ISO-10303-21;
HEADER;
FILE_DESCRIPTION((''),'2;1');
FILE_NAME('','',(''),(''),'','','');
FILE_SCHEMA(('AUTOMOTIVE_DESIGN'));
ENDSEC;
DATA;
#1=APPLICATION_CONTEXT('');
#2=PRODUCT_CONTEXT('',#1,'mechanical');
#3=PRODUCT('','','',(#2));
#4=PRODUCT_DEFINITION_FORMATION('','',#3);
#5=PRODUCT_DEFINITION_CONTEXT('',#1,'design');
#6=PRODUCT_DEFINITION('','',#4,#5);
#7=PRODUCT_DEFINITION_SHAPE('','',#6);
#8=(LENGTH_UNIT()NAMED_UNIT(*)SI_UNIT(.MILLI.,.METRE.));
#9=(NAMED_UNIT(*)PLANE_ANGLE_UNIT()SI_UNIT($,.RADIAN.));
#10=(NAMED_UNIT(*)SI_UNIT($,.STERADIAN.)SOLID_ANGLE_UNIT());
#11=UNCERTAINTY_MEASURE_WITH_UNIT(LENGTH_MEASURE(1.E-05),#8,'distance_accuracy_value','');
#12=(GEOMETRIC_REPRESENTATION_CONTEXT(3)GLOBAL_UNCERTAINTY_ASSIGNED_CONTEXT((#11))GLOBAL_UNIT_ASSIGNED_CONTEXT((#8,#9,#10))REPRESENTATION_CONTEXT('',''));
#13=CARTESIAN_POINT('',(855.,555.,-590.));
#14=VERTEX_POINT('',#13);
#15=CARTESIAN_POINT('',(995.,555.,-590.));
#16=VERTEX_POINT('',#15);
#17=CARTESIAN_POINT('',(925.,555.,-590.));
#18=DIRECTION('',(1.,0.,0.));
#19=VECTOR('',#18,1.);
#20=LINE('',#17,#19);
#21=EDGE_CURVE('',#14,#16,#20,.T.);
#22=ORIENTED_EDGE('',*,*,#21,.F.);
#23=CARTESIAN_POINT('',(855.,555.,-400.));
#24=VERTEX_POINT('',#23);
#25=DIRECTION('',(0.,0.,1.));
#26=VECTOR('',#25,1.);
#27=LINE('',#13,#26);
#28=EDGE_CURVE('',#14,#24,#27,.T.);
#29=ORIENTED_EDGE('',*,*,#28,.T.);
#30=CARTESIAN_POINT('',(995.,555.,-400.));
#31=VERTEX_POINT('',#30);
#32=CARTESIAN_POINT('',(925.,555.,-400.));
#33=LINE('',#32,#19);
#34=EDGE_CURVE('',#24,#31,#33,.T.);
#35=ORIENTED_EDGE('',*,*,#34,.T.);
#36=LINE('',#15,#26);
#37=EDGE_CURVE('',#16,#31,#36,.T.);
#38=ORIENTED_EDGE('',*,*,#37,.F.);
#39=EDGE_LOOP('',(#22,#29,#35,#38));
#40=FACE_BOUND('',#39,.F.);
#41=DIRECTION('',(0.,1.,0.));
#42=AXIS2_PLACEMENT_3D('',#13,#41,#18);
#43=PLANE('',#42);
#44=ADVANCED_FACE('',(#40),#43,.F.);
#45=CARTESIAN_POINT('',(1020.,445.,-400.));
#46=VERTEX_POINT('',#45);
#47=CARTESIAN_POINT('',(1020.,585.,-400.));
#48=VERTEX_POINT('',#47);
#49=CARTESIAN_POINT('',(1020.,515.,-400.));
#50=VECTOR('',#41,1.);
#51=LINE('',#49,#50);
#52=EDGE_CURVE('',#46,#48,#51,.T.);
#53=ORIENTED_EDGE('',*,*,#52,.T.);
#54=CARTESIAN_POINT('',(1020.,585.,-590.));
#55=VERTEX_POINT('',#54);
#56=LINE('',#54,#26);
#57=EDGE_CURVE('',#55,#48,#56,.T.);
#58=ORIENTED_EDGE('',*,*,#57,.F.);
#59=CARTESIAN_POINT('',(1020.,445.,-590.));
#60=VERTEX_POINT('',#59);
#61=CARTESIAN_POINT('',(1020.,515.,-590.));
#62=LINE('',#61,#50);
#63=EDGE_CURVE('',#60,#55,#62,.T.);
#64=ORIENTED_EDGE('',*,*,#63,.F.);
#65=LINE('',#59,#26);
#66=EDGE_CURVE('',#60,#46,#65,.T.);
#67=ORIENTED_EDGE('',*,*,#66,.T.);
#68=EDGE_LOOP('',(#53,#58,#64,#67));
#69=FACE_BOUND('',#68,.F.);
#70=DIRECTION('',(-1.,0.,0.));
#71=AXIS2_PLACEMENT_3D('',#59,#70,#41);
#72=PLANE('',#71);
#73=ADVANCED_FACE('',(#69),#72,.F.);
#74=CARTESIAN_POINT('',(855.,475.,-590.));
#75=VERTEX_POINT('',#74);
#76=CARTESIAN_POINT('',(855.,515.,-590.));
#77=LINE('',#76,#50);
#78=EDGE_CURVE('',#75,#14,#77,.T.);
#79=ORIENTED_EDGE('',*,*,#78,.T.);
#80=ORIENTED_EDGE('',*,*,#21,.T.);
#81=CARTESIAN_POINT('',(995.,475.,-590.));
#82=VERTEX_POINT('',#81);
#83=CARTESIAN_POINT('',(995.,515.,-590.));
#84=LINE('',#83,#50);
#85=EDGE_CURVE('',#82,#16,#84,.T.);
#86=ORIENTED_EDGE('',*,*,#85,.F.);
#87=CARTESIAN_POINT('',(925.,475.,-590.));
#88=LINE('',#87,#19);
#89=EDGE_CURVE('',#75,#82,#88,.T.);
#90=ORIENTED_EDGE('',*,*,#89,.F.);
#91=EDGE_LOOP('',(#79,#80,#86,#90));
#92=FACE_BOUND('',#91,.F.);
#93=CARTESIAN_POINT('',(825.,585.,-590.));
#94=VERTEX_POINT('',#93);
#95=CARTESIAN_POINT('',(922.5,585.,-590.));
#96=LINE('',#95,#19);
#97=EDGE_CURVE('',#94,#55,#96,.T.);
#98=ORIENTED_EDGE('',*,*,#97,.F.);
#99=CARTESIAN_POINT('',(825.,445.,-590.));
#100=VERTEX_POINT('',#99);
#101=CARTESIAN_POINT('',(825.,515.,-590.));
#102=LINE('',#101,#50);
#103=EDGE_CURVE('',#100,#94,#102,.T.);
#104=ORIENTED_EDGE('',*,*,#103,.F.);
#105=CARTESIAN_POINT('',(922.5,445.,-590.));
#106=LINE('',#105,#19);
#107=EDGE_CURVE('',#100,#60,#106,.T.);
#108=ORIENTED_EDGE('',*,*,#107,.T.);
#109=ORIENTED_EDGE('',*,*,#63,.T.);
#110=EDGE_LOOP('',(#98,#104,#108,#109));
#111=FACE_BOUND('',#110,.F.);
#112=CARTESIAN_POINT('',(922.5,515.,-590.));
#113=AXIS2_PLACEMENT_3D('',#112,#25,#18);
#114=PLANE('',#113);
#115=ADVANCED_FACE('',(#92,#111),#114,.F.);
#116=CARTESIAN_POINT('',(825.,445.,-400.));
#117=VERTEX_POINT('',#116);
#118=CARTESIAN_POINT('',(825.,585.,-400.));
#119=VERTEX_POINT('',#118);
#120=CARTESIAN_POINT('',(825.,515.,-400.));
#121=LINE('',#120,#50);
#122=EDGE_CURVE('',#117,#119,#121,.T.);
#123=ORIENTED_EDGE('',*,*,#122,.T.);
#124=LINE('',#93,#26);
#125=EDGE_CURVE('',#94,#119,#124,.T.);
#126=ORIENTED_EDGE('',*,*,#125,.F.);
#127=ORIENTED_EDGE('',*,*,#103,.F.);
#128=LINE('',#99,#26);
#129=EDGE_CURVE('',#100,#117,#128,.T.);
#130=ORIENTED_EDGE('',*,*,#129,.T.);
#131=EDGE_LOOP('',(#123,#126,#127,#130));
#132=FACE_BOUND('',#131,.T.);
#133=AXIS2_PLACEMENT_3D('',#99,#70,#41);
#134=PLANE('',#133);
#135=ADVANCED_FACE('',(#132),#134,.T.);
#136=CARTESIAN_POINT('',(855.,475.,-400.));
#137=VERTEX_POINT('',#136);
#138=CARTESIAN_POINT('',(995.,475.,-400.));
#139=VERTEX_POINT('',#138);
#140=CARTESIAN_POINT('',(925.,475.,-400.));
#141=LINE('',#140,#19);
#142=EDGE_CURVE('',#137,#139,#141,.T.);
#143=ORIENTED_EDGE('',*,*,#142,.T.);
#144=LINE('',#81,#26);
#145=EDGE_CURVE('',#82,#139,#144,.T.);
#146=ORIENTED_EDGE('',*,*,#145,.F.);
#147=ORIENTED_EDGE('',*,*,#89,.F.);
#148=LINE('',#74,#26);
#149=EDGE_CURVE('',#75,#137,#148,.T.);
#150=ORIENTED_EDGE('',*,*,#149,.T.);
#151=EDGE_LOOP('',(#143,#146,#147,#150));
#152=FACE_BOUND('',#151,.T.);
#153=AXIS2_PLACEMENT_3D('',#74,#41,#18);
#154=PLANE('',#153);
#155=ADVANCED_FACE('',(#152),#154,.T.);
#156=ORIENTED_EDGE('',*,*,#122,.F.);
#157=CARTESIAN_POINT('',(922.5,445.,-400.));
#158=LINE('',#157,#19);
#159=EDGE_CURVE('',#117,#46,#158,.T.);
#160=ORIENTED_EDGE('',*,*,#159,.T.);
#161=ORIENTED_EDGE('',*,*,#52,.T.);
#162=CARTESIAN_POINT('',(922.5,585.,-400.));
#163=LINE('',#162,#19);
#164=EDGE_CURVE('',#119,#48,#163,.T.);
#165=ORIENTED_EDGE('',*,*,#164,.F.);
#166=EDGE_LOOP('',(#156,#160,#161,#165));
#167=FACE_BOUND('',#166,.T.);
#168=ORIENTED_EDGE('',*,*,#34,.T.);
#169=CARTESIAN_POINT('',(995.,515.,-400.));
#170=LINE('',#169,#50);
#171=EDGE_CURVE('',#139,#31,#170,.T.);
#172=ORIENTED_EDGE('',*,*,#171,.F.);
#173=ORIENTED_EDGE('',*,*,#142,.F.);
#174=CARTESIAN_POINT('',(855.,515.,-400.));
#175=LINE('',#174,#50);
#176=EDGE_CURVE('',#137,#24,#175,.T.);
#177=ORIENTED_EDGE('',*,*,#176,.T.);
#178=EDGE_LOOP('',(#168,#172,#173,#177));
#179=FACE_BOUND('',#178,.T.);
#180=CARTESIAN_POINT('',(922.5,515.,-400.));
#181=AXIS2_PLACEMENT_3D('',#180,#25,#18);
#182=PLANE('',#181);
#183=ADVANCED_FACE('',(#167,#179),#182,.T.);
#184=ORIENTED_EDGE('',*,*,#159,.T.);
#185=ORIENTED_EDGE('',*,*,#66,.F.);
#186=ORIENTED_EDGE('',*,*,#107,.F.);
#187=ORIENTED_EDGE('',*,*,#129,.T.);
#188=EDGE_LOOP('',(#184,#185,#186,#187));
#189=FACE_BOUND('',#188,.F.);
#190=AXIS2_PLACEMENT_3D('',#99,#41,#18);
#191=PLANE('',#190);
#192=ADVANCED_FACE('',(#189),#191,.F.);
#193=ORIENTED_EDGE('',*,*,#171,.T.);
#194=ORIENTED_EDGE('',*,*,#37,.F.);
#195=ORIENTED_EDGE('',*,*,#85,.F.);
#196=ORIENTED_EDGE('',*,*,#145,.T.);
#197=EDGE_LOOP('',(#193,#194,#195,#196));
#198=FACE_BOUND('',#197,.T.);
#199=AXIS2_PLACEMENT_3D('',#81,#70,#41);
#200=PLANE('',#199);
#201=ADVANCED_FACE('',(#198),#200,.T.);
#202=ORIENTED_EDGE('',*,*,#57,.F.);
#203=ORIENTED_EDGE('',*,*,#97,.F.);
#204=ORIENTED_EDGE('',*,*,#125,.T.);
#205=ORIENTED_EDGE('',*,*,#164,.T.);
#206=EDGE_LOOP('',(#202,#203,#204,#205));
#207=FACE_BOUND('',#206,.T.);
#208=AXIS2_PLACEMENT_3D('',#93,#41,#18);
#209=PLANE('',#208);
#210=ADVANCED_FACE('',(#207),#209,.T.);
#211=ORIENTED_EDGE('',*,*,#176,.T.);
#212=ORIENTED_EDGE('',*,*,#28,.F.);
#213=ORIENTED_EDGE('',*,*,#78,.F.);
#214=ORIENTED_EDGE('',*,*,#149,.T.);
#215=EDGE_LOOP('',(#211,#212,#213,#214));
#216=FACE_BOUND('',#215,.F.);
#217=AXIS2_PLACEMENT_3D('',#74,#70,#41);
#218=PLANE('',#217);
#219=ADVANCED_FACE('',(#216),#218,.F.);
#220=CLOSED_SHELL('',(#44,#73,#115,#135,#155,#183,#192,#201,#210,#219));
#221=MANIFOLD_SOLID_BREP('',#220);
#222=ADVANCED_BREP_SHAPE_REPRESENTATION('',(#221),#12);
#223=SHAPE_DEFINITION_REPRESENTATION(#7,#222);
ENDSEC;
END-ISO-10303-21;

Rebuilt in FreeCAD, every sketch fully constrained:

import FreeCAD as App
import Part
import Sketcher

doc = App.newDocument("Part")
params = doc.addObject("Spreadsheet::Sheet", "Params")
for row, (alias, value) in enumerate([
    ("sketch1_width", "140 mm"),
    ("sketch1_height", "80 mm"),
    ("pad1_length", "190 mm"),
    ("sketch2_width", "140 mm"),
    ("sketch2_height", "80 mm"),
    ("pad2_length", "190 mm"),
    ("sketch3_width", "195 mm"),
    ("sketch3_height", "140 mm"),
    ("pad3_length", "190 mm"),
], start=1):
    params.set(f"A{row}", alias)
    params.set(f"B{row}", "=" + value)
    params.setAlias(f"B{row}", alias)

body = doc.addObject("PartDesign::Body", "Body")

# Sketch on XY plane
sketch1 = body.newObject("Sketcher::SketchObject", "Sketch")
sketch1.AttachmentSupport = (doc.getObject("XY_Plane"), [""])
sketch1.MapMode = "FlatFace"
sketch1.addGeometry([
    Part.LineSegment(App.Vector(220, 110, 0), App.Vector(220, 30, 0)),
    Part.LineSegment(App.Vector(220, 30, 0), App.Vector(360, 30, 0)),
    Part.LineSegment(App.Vector(360, 30, 0), App.Vector(360, 110, 0)),
    Part.LineSegment(App.Vector(360, 110, 0), App.Vector(220, 110, 0)),
], False)
sketch1.addConstraint([
    Sketcher.Constraint("Coincident", 0, 2, 1, 1),
    Sketcher.Constraint("Coincident", 1, 2, 2, 1),
    Sketcher.Constraint("Coincident", 2, 2, 3, 1),
    Sketcher.Constraint("Coincident", 3, 2, 0, 1),
    Sketcher.Constraint("Vertical", 0),
    Sketcher.Constraint("Horizontal", 1),
    Sketcher.Constraint("Vertical", 2),
    Sketcher.Constraint("Horizontal", 3),
    Sketcher.Constraint("DistanceX", 1, 1, 1, 2, 140.0),
    Sketcher.Constraint("DistanceY", 0, 2, 0, 1, 80.0),
    Sketcher.Constraint("DistanceX", -1, 1, 0, 2, 220.0),
    Sketcher.Constraint("DistanceY", -1, 1, 0, 2, 30.0),
])
sketch1.setExpression("Constraints[8]", "Params.sketch1_width")
sketch1.setExpression("Constraints[9]", "Params.sketch1_height")
pad1 = body.newObject("PartDesign::Pad", "Pad")
pad1.Profile = sketch1
pad1.setExpression("Length", "Params.pad1_length")
body2 = doc.addObject("PartDesign::Body", "Body001")
body2.AllowCompound = True

# Sketch on XY plane
sketch2 = body2.newObject("Sketcher::SketchObject", "Sketch001")
sketch2.AttachmentSupport = (doc.getObject("XY_Plane001"), [""])
sketch2.MapMode = "FlatFace"
sketch2.addGeometry([
    Part.LineSegment(App.Vector(30, 110, 0), App.Vector(30, 30, 0)),
    Part.LineSegment(App.Vector(30, 30, 0), App.Vector(170, 30, 0)),
    Part.LineSegment(App.Vector(170, 30, 0), App.Vector(170, 110, 0)),
    Part.LineSegment(App.Vector(170, 110, 0), App.Vector(30, 110, 0)),
], False)
sketch2.addConstraint([
    Sketcher.Constraint("Coincident", 0, 2, 1, 1),
    Sketcher.Constraint("Coincident", 1, 2, 2, 1),
    Sketcher.Constraint("Coincident", 2, 2, 3, 1),
    Sketcher.Constraint("Coincident", 3, 2, 0, 1),
    Sketcher.Constraint("Vertical", 0),
    Sketcher.Constraint("Horizontal", 1),
    Sketcher.Constraint("Vertical", 2),
    Sketcher.Constraint("Horizontal", 3),
    Sketcher.Constraint("DistanceX", 1, 1, 1, 2, 140.0),
    Sketcher.Constraint("DistanceY", 0, 2, 0, 1, 80.0),
    Sketcher.Constraint("DistanceX", -1, 1, 0, 2, 30.0),
    Sketcher.Constraint("DistanceY", -1, 1, 0, 2, 30.0),
])
sketch2.setExpression("Constraints[8]", "Params.sketch2_width")
sketch2.setExpression("Constraints[9]", "Params.sketch2_height")
pad2 = body2.newObject("PartDesign::Pad", "Pad001")
pad2.Profile = sketch2
pad2.setExpression("Length", "Params.pad2_length")
doc.recompute()

boolean = body2.newObject("PartDesign::Boolean", "Boolean")
boolean.Type = "Fuse"
boolean.addObjects([body])
body3 = doc.addObject("PartDesign::Body", "Body002")

# Sketch on XY plane
sketch3 = body3.newObject("Sketcher::SketchObject", "Sketch002")
sketch3.AttachmentSupport = (doc.getObject("XY_Plane002"), [""])
sketch3.MapMode = "FlatFace"
sketch3.addGeometry([
    Part.LineSegment(App.Vector(0, 140, 0), App.Vector(0, 0, 0)),
    Part.LineSegment(App.Vector(0, 0, 0), App.Vector(195, 0, 0)),
    Part.LineSegment(App.Vector(195, 0, 0), App.Vector(195, 140, 0)),
    Part.LineSegment(App.Vector(195, 140, 0), App.Vector(0, 140, 0)),
], False)
sketch3.addConstraint([
    Sketcher.Constraint("Coincident", 0, 2, 1, 1),
    Sketcher.Constraint("Coincident", 1, 2, 2, 1),
    Sketcher.Constraint("Coincident", 2, 2, 3, 1),
    Sketcher.Constraint("Coincident", 3, 2, 0, 1),
    Sketcher.Constraint("Vertical", 0),
    Sketcher.Constraint("Horizontal", 1),
    Sketcher.Constraint("Vertical", 2),
    Sketcher.Constraint("Horizontal", 3),
    Sketcher.Constraint("Coincident", 0, 2, -1, 1),
    Sketcher.Constraint("DistanceX", 1, 1, 1, 2, 195.0),
    Sketcher.Constraint("DistanceY", 0, 2, 0, 1, 140.0),
])
sketch3.setExpression("Constraints[9]", "Params.sketch3_width")
sketch3.setExpression("Constraints[10]", "Params.sketch3_height")
pad3 = body3.newObject("PartDesign::Pad", "Pad002")
pad3.Profile = sketch3
pad3.setExpression("Length", "Params.pad3_length")
doc.recompute()

boolean2 = body3.newObject("PartDesign::Boolean", "Boolean001")
boolean2.Type = "Cut"
boolean2.addObjects([body2])
body4 = doc.addObject("PartDesign::Body", "Body003")
doc.recompute()

body3.Placement = App.Placement(App.Vector(825, 445, -590), App.Rotation(App.Vector(0, 0, 1), 0))
boolean3 = body4.newObject("PartDesign::Boolean", "Boolean002")
boolean3.Type = "Fuse"
boolean3.addObjects([body3])

doc.recompute()
